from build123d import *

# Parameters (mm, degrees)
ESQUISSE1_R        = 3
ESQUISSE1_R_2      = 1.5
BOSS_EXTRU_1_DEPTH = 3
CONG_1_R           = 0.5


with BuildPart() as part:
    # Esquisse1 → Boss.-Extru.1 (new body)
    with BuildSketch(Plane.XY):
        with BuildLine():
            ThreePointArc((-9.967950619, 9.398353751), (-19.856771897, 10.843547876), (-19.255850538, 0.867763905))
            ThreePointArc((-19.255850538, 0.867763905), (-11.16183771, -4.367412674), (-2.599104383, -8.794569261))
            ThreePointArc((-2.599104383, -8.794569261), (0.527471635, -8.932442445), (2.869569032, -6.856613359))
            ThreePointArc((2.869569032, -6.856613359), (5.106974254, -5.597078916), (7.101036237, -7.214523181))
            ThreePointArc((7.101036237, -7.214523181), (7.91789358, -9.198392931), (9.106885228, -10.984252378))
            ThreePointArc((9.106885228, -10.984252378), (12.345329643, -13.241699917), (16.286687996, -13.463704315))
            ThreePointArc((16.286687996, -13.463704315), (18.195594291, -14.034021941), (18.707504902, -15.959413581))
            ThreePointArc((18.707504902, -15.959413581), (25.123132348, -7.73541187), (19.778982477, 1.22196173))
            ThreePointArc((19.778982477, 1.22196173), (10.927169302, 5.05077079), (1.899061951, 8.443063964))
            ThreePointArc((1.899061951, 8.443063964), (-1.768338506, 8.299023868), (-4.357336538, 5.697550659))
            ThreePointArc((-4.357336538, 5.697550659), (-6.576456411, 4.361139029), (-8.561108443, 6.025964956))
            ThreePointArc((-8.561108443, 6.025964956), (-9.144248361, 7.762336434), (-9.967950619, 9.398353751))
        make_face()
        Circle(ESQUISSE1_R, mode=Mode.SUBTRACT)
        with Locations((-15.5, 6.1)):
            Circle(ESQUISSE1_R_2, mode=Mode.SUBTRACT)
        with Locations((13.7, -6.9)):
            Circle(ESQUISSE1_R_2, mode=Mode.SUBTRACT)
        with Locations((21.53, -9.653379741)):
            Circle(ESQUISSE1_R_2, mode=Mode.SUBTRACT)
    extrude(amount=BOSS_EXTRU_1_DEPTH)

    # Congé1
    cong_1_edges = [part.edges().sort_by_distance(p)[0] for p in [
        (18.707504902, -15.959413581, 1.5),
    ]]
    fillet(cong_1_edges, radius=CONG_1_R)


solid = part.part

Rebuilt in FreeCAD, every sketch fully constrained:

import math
import FreeCAD as App
import Part
import Sketcher


def edges_at(feature, points):
    """Names of the edges that pass closest to the given points."""
    edges = feature.Shape.Edges
    near = lambda p: min(range(len(edges)), key=lambda i: edges[i].distToShape(Part.Vertex(*p))[0])
    return sorted({f"Edge{near(p) + 1}" for p in points})

doc = App.newDocument("Part")
body = doc.addObject("PartDesign::Body", "Body")

sketch1 = body.newObject("Sketcher::SketchObject", "Sketch")
sketch1.AttachmentSupport = (doc.getObject("XY_Plane"), [""])
sketch1.MapMode = "FlatFace"
sketch1.addGeometry([
    Part.ArcOfCircle(Part.Circle(App.Vector(-15.5, 6.1, 0), App.Vector(0, 0, 1), 6.440707), math.radians(30.804512), math.radians(234.32812)),
    Part.ArcOfCircle(Part.Circle(App.Vector(38.75084, 81.676278, 0), App.Vector(0, 0, 1), 99.47257), math.radians(-125.67188), math.radians(-114.562898)),
    Part.ArcOfCircle(Part.Circle(App.Vector(-0.865517, -5.001599, 0), App.Vector(0, 0, 1), 4.170365), math.radians(-114.562898), math.radians(-26.411091)),
    Part.ArcOfCircle(Part.Circle(App.Vector(4.914535, -7.872237, 0), App.Vector(0, 0, 1), 2.283282), math.radians(16.741619), math.radians(153.588909)),
    Part.ArcOfCircle(Part.Circle(App.Vector(17.557788, -4.069066, 0), App.Vector(0, 0, 1), 10.919595), math.radians(-163.258381), math.radians(-140.7073)),
    Part.ArcOfCircle(Part.Circle(App.Vector(14.707557, -6.401347, 0), App.Vector(0, 0, 1), 7.23675), math.radians(-140.7073), math.radians(-77.396081)),
    Part.ArcOfCircle(Part.Circle(App.Vector(16.73171, -15.453978, 0), App.Vector(0, 0, 1), 2.03942), math.radians(-14.349332), math.radians(102.603919)),
    Part.ArcOfCircle(Part.Circle(App.Vector(15.907566, -7.160704, 0), App.Vector(0, 0, 1), 9.233469), math.radians(-72.347811), math.radians(65.21081)),
    Part.ArcOfCircle(Part.Circle(App.Vector(-63.061942, -178.151098, 0), App.Vector(0, 0, 1), 197.578625), math.radians(65.21081), math.radians(70.804918)),
    Part.ArcOfCircle(Part.Circle(App.Vector(0.248718, 3.702612, 0), App.Vector(0, 0, 1), 5.019514), math.radians(70.804918), math.radians(156.581972)),
    Part.ArcOfCircle(Part.Circle(App.Vector(-6.402839, 6.583483, 0), App.Vector(0, 0, 1), 2.229115), math.radians(-165.516145), math.radians(-23.418028)),
    Part.ArcOfCircle(Part.Circle(App.Vector(-21.023577, 2.806698, 0), App.Vector(0, 0, 1), 12.87155), math.radians(14.483855), math.radians(30.804512)),
    Part.Circle(App.Vector(21.53, -9.65338, 0), App.Vector(0, 0, 1), 1.5),
    Part.Circle(App.Vector(13.7, -6.9, 0), App.Vector(0, 0, 1), 1.5),
    Part.Circle(App.Vector(0, 0, 0), App.Vector(0, 0, 1), 3),
    Part.Circle(App.Vector(-15.5, 6.1, 0), App.Vector(0, 0, 1), 1.5),
], False)
sketch1.addConstraint([
    Sketcher.Constraint("Coincident", 0, 2, 1, 1),
    Sketcher.Constraint("Coincident", 1, 2, 2, 1),
    Sketcher.Constraint("Coincident", 2, 2, 3, 2),
    Sketcher.Constraint("Coincident", 3, 1, 4, 1),
    Sketcher.Constraint("Coincident", 4, 2, 5, 1),
    Sketcher.Constraint("Coincident", 5, 2, 6, 2),
    Sketcher.Constraint("Coincident", 6, 1, 7, 1),
    Sketcher.Constraint("Coincident", 7, 2, 8, 1),
    Sketcher.Constraint("Coincident", 8, 2, 9, 1),
    Sketcher.Constraint("Coincident", 9, 2, 10, 2),
    Sketcher.Constraint("Coincident", 10, 1, 11, 1),
    Sketcher.Constraint("Coincident", 11, 2, 0, 1),
    Sketcher.Constraint("Coincident", 14, 3, -1, 1),
    Sketcher.Constraint("Coincident", 15, 3, 0, 3),
    Sketcher.Constraint("Diameter", 12, 3.0),
    Sketcher.Constraint("Diameter", 13, 3.0),
    Sketcher.Constraint("Diameter", 14, 6.0),
    Sketcher.Constraint("Diameter", 15, 3.0),
    Sketcher.Constraint("DistanceX", 0, 3, -1, 1, 15.5),
    Sketcher.Constraint("DistanceY", -1, 1, 0, 3, 6.1),
    Sketcher.Constraint("DistanceX", -1, 1, 13, 3, 13.7),
    Sketcher.Constraint("DistanceY", 13, 3, -1, 1, 6.9),
    Sketcher.Constraint("DistanceX", -1, 1, 12, 3, 21.53),
    Sketcher.Constraint("Radius", 1, 99.47257),
    Sketcher.Constraint("Radius", 3, 2.283282),
    Sketcher.Constraint("Radius", 5, 7.23675),
    Sketcher.Constraint("Radius", 6, 2.03942),
    Sketcher.Constraint("Radius", 7, 9.233469),
    Sketcher.Constraint("Radius", 11, 12.87155),
    Sketcher.Constraint("Radius", 0, 6.440707),
    Sketcher.Constraint("Radius", 2, 4.170365),
    Sketcher.Constraint("Radius", 4, 10.919595),
    Sketcher.Constraint("Radius", 8, 197.578625),
    Sketcher.Constraint("Radius", 9, 5.019514),
    Sketcher.Constraint("Radius", 10, 2.229115),
    Sketcher.Constraint("DistanceY", 5, 2, 7, 3, 6.303),
    Sketcher.Constraint("DistanceY", 2, 3, -1, 1, 5.001599),
    Sketcher.Constraint("DistanceY", 8, 3, 2, 3, 173.149499),
    Sketcher.Constraint("DistanceX", 8, 3, 5, 3, 77.769499),
    Sketcher.Constraint("DistanceX", 3, 3, 3, 1, 2.186501),
    Sketcher.Constraint("DistanceX", 10, 3, 8, 2, 8.301901),
    Sketcher.Constraint("DistanceX", 9, 2, 8, 2, 6.256398),
    Sketcher.Constraint("DistanceX", -1, 1, 1, 3, 38.75084),
    Sketcher.Constraint("DistanceX", -1, 1, 4, 3, 17.557788),
    Sketcher.Constraint("DistanceX", -1, 1, 6, 3, 16.73171),
    Sketcher.Constraint("DistanceX", 8, 3, -1, 1, 63.061942),
    Sketcher.Constraint("DistanceX", -1, 1, 9, 3, 0.248718),
    Sketcher.Constraint("DistanceX", 10, 3, -1, 1, 6.402839),
    Sketcher.Constraint("DistanceY", 12, 3, -1, 1, 9.65338),
    Sketcher.Constraint("DistanceX", 0, 2, -1, 1, 19.255851),
    Sketcher.Constraint("DistanceY", 1, 2, -1, 1, 8.794569),
    Sketcher.Constraint("DistanceX", -1, 1, 2, 2, 2.869569),
    Sketcher.Constraint("DistanceY", -1, 1, 7, 2, 1.221962),
    Sketcher.Constraint("DistanceX", 10, 1, -1, 1, 8.561108),
    Sketcher.Constraint("DistanceX", 11, 2, -1, 1, 9.967951),
    Sketcher.Constraint("DistanceX", 2, 3, 3, 3, 5.780052),
    Sketcher.Constraint("DistanceX", 5, 3, 7, 3, 1.200009),
    Sketcher.Constraint("DistanceX", 3, 1, 4, 2, 2.005849),
])
pad1 = body.newObject("PartDesign::Pad", "Pad")
pad1.Profile = sketch1
pad1.Length = 3
doc.recompute()

fillet = body.newObject("PartDesign::Fillet", "Fillet")
fillet.Base = (pad1, edges_at(pad1, [(18.708, -15.959, 1.5)]))
fillet.Radius = 0.5

doc.recompute()
